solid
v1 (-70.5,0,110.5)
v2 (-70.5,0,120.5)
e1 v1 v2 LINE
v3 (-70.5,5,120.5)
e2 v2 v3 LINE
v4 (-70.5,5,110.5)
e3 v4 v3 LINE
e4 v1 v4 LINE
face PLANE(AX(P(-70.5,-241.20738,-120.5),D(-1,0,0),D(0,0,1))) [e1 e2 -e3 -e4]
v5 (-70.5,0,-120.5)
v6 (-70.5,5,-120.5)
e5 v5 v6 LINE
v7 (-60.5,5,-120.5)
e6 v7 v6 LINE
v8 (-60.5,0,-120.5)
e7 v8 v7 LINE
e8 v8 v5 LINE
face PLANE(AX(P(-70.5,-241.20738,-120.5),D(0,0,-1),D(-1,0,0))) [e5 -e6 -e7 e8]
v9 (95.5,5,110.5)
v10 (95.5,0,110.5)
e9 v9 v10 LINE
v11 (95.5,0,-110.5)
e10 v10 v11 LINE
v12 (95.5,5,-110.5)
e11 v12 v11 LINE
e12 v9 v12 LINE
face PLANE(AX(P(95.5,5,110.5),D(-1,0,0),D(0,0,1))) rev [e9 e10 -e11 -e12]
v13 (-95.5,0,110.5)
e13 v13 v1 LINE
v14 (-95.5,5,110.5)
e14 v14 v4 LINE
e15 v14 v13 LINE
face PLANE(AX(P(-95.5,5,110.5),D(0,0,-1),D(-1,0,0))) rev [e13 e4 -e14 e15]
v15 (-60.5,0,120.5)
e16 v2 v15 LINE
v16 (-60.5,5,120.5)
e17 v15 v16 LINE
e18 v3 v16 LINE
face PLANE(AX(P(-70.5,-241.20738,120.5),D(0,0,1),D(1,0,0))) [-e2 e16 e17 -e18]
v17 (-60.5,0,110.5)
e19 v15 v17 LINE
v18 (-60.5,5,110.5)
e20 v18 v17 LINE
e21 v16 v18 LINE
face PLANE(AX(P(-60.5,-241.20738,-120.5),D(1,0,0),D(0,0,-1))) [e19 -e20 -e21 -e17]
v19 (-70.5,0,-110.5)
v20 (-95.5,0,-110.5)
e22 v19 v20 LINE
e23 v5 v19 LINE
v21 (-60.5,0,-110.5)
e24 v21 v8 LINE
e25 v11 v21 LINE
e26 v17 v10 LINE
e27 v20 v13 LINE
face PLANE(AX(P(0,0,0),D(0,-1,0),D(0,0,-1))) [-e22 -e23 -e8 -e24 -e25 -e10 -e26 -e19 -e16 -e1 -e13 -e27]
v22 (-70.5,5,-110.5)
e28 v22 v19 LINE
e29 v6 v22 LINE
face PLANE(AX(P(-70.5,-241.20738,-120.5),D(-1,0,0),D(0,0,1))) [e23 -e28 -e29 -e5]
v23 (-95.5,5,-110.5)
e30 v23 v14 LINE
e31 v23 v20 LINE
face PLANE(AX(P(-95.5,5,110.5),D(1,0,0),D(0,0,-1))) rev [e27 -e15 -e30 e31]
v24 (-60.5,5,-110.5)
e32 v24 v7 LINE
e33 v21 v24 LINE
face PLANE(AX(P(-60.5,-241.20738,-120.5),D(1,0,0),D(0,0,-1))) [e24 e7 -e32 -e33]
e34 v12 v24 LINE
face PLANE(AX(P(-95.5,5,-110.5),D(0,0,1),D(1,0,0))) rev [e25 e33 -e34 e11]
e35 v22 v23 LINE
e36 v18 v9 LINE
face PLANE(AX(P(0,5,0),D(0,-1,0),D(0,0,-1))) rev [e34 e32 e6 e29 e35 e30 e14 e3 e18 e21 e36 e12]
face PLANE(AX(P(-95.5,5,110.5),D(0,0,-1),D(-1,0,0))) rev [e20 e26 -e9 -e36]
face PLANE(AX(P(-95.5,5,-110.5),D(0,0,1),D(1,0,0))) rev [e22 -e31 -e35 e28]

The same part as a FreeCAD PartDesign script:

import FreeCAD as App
import Part
import Sketcher
from FreeCAD import Vector
Q = App.Units.Quantity


def add_polygon(sketch, points):
    """Adds a closed chain of lines whose ends are joined by coincident constraints."""
    first, n = sketch.GeometryCount, len(points)
    for a, b in zip(points, points[1:] + points[:1]):
        sketch.addGeometry(Part.LineSegment(App.Vector(*a, 0), App.Vector(*b, 0)), False)
    for i in range(n):
        sketch.addConstraint(Sketcher.Constraint("Coincident", first + i, 2, first + (i + 1) % n, 1))

doc = App.newDocument("Part")
body = doc.addObject("PartDesign::Body", "Body")

sketch1 = body.newObject("Sketcher::SketchObject", "Sketch")
sketch1.AttachmentSupport = (doc.getObject("XZ_Plane"), [""])
sketch1.MapMode = "FlatFace"
add_polygon(sketch1, [(-95.5, -110.5), (-95.5, 110.5), (95.5, 110.5), (95.5, -110.5)])
sketch1.addConstraint([
    Sketcher.Constraint("Vertical", 0),
    Sketcher.Constraint("Horizontal", 1),
    Sketcher.Constraint("Vertical", 2),
    Sketcher.Constraint("Horizontal", 3),
    Sketcher.Constraint("Symmetric", 0, 2, 2, 2, -1, 1),
    Sketcher.Constraint("DistanceX", 1, 1, 1, 2, Q("191 mm")),
    Sketcher.Constraint("DistanceY", 0, 1, 0, 2, Q("221 mm")),
])
pad1 = body.newObject("PartDesign::Pad", "Pad")
pad1.Profile = sketch1
pad1.Length = 5
pad1.Reversed = True

sketch2 = body.newObject("Sketcher::SketchObject", "Sketch001")
sketch2.AttachmentSupport = (doc.getObject("XZ_Plane"), [""])
sketch2.MapMode = "FlatFace"
sketch2.AttachmentOffset = App.Placement(Vector(0, 0, -5), App.Rotation())
add_polygon(sketch2, [(-70.5, -120.5), (-70.5, 120.5), (-60.5, 120.5), (-60.5, -120.5)])
sketch2.addConstraint([
    Sketcher.Constraint("Vertical", 0),
    Sketcher.Constraint("Horizontal", 1),
    Sketcher.Constraint("Vertical", 2),
    Sketcher.Constraint("Horizontal", 3),
    Sketcher.Constraint("DistanceX", 1, 1, 1, 2, Q("10 mm")),
    Sketcher.Constraint("DistanceY", 0, 1, 0, 2, Q("241 mm")),
    Sketcher.Constraint("DistanceX", 0, 2, -1, 1, Q("70.5 mm")),
    Sketcher.Constraint("DistanceY", -1, 1, 0, 2, Q("120.5 mm")),
])
pad2 = body.newObject("PartDesign::Pad", "Pad001")
pad2.Profile = sketch2
pad2.Length = 5

doc.recompute()
